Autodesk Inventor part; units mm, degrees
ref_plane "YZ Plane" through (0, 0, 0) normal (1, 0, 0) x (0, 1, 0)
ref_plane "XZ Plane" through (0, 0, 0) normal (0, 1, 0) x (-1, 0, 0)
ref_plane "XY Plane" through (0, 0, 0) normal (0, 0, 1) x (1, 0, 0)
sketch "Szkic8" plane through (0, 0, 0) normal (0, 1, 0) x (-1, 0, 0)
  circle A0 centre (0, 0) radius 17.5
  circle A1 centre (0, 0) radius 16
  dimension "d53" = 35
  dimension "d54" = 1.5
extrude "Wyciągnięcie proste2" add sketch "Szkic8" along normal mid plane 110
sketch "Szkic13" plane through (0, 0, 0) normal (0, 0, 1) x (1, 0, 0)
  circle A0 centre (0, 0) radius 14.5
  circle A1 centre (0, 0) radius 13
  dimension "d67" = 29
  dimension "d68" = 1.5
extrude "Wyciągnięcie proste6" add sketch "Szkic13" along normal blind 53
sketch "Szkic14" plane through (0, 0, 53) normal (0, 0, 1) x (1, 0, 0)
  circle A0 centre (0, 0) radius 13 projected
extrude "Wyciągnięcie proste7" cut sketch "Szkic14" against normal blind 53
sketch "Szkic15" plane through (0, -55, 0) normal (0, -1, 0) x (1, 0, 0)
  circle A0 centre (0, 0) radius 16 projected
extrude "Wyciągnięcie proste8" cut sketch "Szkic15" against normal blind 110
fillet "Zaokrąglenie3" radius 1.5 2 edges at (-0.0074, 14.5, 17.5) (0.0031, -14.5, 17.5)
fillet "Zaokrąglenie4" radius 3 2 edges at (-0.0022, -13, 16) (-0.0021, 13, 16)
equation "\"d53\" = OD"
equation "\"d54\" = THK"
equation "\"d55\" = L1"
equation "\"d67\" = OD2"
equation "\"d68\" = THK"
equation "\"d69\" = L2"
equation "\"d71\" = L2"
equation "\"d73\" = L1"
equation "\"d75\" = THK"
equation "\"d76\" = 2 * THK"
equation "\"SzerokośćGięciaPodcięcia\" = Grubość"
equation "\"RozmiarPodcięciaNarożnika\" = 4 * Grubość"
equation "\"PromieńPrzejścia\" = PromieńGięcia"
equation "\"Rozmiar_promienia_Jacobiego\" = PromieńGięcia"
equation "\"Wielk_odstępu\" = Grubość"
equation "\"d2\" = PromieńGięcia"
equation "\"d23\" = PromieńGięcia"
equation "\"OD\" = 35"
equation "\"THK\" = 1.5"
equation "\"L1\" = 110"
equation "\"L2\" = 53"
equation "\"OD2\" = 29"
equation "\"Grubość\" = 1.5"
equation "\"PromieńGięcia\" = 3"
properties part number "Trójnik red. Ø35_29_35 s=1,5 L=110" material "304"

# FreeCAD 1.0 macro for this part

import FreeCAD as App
import Part
import Sketcher


def edges_at(feature, points):
    """Names of the edges that pass closest to the given points."""
    edges = feature.Shape.Edges
    near = lambda p: min(range(len(edges)), key=lambda i: edges[i].distToShape(Part.Vertex(*p))[0])
    return sorted({f"Edge{near(p) + 1}" for p in points})

doc = App.newDocument("Part")
body = doc.addObject("PartDesign::Body", "Body")

# Sketch on XZ plane
sketch1 = body.newObject("Sketcher::SketchObject", "Sketch")
sketch1.AttachmentSupport = (doc.getObject("XZ_Plane"), [""])
sketch1.MapMode = "FlatFace"
sketch1.addGeometry([
    Part.Circle(App.Vector(0, 0, 0), App.Vector(0, 0, 1), 18),
    Part.Circle(App.Vector(0, 0, 0), App.Vector(0, 0, 1), 16),
], False)
sketch1.addConstraint([
    Sketcher.Constraint("Coincident", 0, 3, -1, 1),
    Sketcher.Constraint("Coincident", 1, 3, -1, 1),
    Sketcher.Constraint("Diameter", 0, 35.0),
    Sketcher.Constraint("Diameter", 1, 32.0),
])
pad1 = body.newObject("PartDesign::Pad", "Pad")
pad1.Profile = sketch1
pad1.Length = 110
pad1.Midplane = True

# Sketch on XY plane
sketch2 = body.newObject("Sketcher::SketchObject", "Sketch001")
sketch2.AttachmentSupport = (doc.getObject("XY_Plane"), [""])
sketch2.MapMode = "FlatFace"
sketch2.addGeometry([
    Part.Circle(App.Vector(0, 0, 0), App.Vector(0, 0, 1), 14),
    Part.Circle(App.Vector(0, 0, 0), App.Vector(0, 0, 1), 13),
], False)
sketch2.addConstraint([
    Sketcher.Constraint("Coincident", 0, 3, -1, 1),
    Sketcher.Constraint("Coincident", 1, 3, -1, 1),
    Sketcher.Constraint("Diameter", 0, 29.0),
    Sketcher.Constraint("Diameter", 1, 26.0),
])
pad2 = body.newObject("PartDesign::Pad", "Pad001")
pad2.Profile = sketch2
pad2.Length = 53

# Sketch on XY plane
sketch3 = body.newObject("Sketcher::SketchObject", "Sketch002")
sketch3.AttachmentSupport = (doc.getObject("XY_Plane"), [""])
sketch3.MapMode = "FlatFace"
sketch3.AttachmentOffset = App.Placement(App.Vector(0, 0, 53), App.Rotation())
sketch3.addGeometry(Part.Circle(App.Vector(0, 0, 0), App.Vector(0, 0, 1), 13), False)
sketch3.addConstraint([
    Sketcher.Constraint("Coincident", 0, 3, -1, 1),
    Sketcher.Constraint("Diameter", 0, 26.0),
])
pocket1 = body.newObject("PartDesign::Pocket", "Pocket")
pocket1.Profile = sketch3
pocket1.Length = 53

# Sketch on XZ plane
sketch4 = body.newObject("Sketcher::SketchObject", "Sketch003")
sketch4.AttachmentSupport = (doc.getObject("XZ_Plane"), [""])
sketch4.MapMode = "FlatFace"
sketch4.AttachmentOffset = App.Placement(App.Vector(0, 0, 55), App.Rotation())
sketch4.addGeometry(Part.Circle(App.Vector(0, 0, 0), App.Vector(0, 0, 1), 16), False)
sketch4.addConstraint([
    Sketcher.Constraint("Coincident", 0, 3, -1, 1),
    Sketcher.Constraint("Diameter", 0, 32.0),
])
pocket2 = body.newObject("PartDesign::Pocket", "Pocket001")
pocket2.Profile = sketch4
pocket2.Length = 110
doc.recompute()

fillet = body.newObject("PartDesign::Fillet", "Fillet")
fillet.Base = (pocket2, edges_at(pocket2, [(-0.007, 14.5, 17.5), (0.003, -14.5, 17.5)]))
fillet.Radius = 1.5
doc.recompute()

fillet2 = body.newObject("PartDesign::Fillet", "Fillet001")
fillet2.Base = (fillet, edges_at(fillet, [(-0.002, -13, 16), (-0.002, 13, 16)]))
fillet2.Radius = 3

doc.recompute()
